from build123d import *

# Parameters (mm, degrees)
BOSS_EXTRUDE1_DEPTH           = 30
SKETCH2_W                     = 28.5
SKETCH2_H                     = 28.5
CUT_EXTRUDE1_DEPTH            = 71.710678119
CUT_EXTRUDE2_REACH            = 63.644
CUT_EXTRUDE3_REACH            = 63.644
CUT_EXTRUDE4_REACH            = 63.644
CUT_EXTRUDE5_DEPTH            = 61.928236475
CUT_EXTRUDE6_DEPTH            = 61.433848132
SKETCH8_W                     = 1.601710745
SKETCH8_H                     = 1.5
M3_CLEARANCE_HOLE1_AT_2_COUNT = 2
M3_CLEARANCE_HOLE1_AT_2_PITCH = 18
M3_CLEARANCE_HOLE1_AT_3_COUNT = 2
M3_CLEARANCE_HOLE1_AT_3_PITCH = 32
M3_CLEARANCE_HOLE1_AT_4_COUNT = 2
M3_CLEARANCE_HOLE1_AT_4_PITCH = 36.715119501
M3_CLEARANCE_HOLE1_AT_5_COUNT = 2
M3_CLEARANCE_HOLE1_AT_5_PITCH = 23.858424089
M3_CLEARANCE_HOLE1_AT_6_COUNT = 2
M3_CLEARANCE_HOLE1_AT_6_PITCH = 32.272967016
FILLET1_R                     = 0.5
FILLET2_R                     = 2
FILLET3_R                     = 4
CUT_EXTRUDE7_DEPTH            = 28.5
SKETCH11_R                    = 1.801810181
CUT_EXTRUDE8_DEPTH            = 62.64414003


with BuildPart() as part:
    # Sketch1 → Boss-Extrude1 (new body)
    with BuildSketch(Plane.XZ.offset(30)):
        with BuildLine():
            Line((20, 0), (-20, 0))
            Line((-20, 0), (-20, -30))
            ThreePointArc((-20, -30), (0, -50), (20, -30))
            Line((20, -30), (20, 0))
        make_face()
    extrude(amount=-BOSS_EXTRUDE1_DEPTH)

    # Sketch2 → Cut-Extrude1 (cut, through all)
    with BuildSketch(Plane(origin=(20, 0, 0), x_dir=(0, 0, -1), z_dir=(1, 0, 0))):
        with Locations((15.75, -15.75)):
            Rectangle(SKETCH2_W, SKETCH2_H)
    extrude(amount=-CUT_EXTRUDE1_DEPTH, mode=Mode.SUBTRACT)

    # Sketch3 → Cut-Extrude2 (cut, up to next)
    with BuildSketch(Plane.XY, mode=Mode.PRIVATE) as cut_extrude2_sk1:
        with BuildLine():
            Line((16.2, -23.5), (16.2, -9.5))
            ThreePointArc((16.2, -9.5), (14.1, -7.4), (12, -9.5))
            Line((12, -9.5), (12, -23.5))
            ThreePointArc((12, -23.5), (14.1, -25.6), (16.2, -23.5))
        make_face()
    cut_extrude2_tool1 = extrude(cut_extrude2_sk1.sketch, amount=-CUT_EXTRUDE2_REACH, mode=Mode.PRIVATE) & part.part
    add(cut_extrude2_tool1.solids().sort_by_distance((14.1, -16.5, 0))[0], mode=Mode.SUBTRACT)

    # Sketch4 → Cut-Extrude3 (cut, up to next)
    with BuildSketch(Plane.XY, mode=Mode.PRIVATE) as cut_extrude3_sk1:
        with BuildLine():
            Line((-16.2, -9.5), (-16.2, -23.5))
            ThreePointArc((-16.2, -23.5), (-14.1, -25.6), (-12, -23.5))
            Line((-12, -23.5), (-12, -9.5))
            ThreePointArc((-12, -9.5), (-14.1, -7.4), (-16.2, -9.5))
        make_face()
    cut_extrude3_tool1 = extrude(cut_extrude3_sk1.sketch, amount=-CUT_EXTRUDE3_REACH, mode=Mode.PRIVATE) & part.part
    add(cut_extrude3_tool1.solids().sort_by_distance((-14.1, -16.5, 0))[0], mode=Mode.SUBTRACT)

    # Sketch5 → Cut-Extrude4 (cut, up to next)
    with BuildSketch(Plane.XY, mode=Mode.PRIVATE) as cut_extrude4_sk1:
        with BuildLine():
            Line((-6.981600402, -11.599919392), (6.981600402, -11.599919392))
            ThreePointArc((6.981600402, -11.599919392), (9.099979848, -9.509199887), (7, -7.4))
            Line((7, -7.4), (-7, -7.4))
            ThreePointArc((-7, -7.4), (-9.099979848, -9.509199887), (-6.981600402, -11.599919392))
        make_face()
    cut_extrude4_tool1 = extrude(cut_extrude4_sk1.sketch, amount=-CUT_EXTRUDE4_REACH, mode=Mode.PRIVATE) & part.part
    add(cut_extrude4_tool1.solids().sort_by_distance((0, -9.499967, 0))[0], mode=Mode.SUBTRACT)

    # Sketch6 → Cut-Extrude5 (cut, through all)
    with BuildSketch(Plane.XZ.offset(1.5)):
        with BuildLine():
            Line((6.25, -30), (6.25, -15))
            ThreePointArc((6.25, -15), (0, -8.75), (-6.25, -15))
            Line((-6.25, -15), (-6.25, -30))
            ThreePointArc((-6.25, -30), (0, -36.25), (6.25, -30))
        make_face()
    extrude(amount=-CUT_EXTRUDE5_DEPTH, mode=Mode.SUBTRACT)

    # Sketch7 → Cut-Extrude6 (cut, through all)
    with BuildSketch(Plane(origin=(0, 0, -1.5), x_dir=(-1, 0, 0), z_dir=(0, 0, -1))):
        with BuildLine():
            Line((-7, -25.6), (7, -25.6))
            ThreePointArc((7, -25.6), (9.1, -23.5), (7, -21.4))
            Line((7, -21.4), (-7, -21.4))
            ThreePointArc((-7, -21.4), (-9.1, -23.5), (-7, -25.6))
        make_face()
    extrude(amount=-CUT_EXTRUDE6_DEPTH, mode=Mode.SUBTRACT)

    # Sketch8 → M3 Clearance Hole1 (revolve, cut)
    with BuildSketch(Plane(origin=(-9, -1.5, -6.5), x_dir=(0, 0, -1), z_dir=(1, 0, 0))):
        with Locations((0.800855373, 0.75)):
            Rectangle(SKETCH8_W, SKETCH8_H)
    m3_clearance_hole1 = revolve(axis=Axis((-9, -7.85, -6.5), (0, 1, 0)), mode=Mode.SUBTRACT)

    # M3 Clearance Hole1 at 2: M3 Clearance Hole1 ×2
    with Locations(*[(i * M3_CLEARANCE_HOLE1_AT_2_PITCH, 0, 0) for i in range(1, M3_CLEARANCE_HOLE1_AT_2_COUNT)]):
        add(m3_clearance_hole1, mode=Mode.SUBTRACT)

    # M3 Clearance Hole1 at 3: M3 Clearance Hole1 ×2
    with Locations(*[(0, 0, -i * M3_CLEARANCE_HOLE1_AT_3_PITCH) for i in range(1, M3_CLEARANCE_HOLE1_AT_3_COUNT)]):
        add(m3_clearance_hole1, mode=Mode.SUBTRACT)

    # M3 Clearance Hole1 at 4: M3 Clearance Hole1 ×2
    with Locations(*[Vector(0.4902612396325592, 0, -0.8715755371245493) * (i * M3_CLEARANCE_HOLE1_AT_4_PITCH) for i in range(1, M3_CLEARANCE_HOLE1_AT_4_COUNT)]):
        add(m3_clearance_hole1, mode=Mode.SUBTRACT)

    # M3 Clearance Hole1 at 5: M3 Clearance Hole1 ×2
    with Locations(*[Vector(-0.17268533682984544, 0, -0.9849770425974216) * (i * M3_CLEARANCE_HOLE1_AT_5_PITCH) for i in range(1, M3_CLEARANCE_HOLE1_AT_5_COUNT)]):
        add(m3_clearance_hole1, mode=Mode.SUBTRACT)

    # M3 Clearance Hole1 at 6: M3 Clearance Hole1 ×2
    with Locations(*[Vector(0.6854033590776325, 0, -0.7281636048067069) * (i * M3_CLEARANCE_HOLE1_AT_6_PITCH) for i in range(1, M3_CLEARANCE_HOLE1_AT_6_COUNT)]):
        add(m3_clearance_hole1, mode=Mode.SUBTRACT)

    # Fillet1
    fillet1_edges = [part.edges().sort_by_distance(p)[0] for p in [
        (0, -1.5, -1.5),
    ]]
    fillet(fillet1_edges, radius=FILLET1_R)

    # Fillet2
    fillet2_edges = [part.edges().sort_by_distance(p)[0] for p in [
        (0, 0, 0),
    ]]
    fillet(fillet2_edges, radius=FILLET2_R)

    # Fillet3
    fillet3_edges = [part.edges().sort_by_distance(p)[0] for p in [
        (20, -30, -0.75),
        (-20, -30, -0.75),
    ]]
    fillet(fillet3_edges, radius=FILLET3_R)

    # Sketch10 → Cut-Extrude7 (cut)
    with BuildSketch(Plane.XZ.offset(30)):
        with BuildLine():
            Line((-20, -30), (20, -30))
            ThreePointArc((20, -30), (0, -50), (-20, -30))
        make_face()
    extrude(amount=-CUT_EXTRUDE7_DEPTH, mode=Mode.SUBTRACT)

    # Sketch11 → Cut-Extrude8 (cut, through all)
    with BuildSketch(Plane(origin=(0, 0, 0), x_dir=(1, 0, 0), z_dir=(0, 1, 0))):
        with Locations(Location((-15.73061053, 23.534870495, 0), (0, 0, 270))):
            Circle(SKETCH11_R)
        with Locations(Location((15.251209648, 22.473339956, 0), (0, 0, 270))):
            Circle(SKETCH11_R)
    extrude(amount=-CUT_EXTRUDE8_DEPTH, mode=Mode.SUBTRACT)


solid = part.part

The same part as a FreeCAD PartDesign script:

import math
import FreeCAD as App
import Part
import Sketcher


def edges_at(feature, points):
    """Names of the edges that pass closest to the given points."""
    edges = feature.Shape.Edges
    near = lambda p: min(range(len(edges)), key=lambda i: edges[i].distToShape(Part.Vertex(*p))[0])
    return sorted({f"Edge{near(p) + 1}" for p in points})


def add_polygon(sketch, points):
    """Adds a closed chain of lines whose ends are joined by coincident constraints."""
    first, n = sketch.GeometryCount, len(points)
    for a, b in zip(points, points[1:] + points[:1]):
        sketch.addGeometry(Part.LineSegment(App.Vector(*a, 0), App.Vector(*b, 0)), False)
    for i in range(n):
        sketch.addConstraint(Sketcher.Constraint("Coincident", first + i, 2, first + (i + 1) % n, 1))

doc = App.newDocument("Part")
params = doc.addObject("Spreadsheet::Sheet", "Params")
for row, (alias, value) in enumerate([
    ("sketch1_radius", "20 mm"),
    ("sketch1_height", "30 mm"),
    ("pad1_length", "30 mm"),
    ("sketch2_width", "28.5 mm"),
    ("sketch3_radius", "2.1 mm"),
    ("sketch3_height", "14 mm"),
    ("sketch4_radius", "2.1 mm"),
    ("sketch4_height", "14 mm"),
    ("sketch5_radius", "2.1 mm"),
    ("sketch5_width", "14 mm"),
    ("sketch6_height", "15 mm"),
    ("sketch6_radius", "6.25 mm"),
    ("sketch7_radius", "2.1 mm"),
    ("sketch7_width", "14 mm"),
    ("sketch8_width", "1.5 mm"),
    ("groove_angle", "360 deg"),
    ("linearpattern_pitch", "18 mm"),
    ("linearpattern2_pitch", "32 mm"),
    ("linearpattern3_pitch", "36.71512 mm"),
    ("linearpattern4_pitch", "23.858424 mm"),
    ("linearpattern5_pitch", "32.272967 mm"),
    ("fillet_radius", "0.5 mm"),
    ("fillet2_radius", "2 mm"),
    ("fillet3_radius", "4 mm"),
    ("sketch9_radius", "20 mm"),
    ("pocket7_length", "28.5 mm"),
], start=1):
    params.set(f"A{row}", alias)
    params.set(f"B{row}", "=" + value)
    params.setAlias(f"B{row}", alias)

body = doc.addObject("PartDesign::Body", "Body")

# Sketch on XZ plane
sketch1 = doc.addObject("Sketcher::SketchObject", "Sketch")
body.addObject(sketch1)
sketch1.AttachmentSupport = (doc.XZ_Plane, [""])
sketch1.MapMode = "FlatFace"
sketch1.AttachmentOffset = App.Placement(App.Vector(0, 0, 30), App.Rotation())
sketch1.addGeometry([
    Part.LineSegment(App.Vector(20, 0, 0), App.Vector(-20, 0, 0)),
    Part.LineSegment(App.Vector(-20, 0, 0), App.Vector(-20, -30, 0)),
    Part.ArcOfCircle(Part.Circle(App.Vector(0, -30, 0), App.Vector(0, 0, 1), 20), math.radians(180), math.radians(360)),
    Part.LineSegment(App.Vector(20, -30, 0), App.Vector(20, 0, 0)),
], False)
sketch1.addConstraint([
    Sketcher.Constraint("Coincident", 0, 2, 1, 1),
    Sketcher.Constraint("Tangent", 1, 2, 2, 1),
    Sketcher.Constraint("Tangent", 2, 2, 3, 1),
    Sketcher.Constraint("Coincident", 3, 2, 0, 1),
    Sketcher.Constraint("Horizontal", 0),
    Sketcher.Constraint("Vertical", 1),
    Sketcher.Constraint("Vertical", 3),
    Sketcher.Constraint("Symmetric", 0, 2, 3, 2, -1, 1),
    Sketcher.Constraint("Radius", 2, 20.0),
    Sketcher.Constraint("DistanceY", 1, 2, 1, 1, 30.0),
])
sketch1.setExpression("Constraints[8]", "Params.sketch1_radius")
sketch1.setExpression("Constraints[9]", "Params.sketch1_height")
pad1 = doc.addObject("PartDesign::Pad", "Pad")
body.addObject(pad1)
pad1.Profile = sketch1
pad1.setExpression("Length", "Params.pad1_length")
pad1.Reversed = True

# Sketch on YZ plane
sketch2 = doc.addObject("Sketcher::SketchObject", "Sketch001")
body.addObject(sketch2)
sketch2.AttachmentSupport = (doc.YZ_Plane, [""])
sketch2.MapMode = "FlatFace"
sketch2.AttachmentOffset = App.Placement(App.Vector(0, 0, 20), App.Rotation())
add_polygon(sketch2, [(-1.5, -1.5), (-30, -1.5), (-30, -30), (-1.5, -30)])  # lines 0-3
sketch2.addConstraint([
    Sketcher.Constraint("Horizontal", 0),
    Sketcher.Constraint("Vertical", 1),
    Sketcher.Constraint("Horizontal", 2),
    Sketcher.Constraint("Vertical", 3),
    Sketcher.Constraint("Equal", 2, 1),
    Sketcher.Constraint("DistanceX", 0, 2, 0, 1, 28.5),
    Sketcher.Constraint("DistanceX", 0, 2, -1, 1, 30.0),
    Sketcher.Constraint("DistanceY", 1, 2, -1, 1, 30.0),
])
sketch2.setExpression("Constraints[9]", "Params.sketch2_width")
pocket1 = doc.addObject("PartDesign::Pocket", "Pocket")
body.addObject(pocket1)
pocket1.Profile = sketch2
pocket1.Type = "ThroughAll"

# Sketch on XY plane
sketch3 = doc.addObject("Sketcher::SketchObject", "Sketch002")
body.addObject(sketch3)
sketch3.AttachmentSupport = (doc.XY_Plane, [""])
sketch3.MapMode = "FlatFace"
sketch3.addGeometry([
    Part.LineSegment(App.Vector(16.2, -23.5, 0), App.Vector(16.2, -9.5, 0)),
    Part.ArcOfCircle(Part.Circle(App.Vector(14.1, -9.5, 0), App.Vector(0, 0, 1), 2.1), math.radians(0), math.radians(180)),
    Part.LineSegment(App.Vector(12, -9.5, 0), App.Vector(12, -23.5, 0)),
    Part.ArcOfCircle(Part.Circle(App.Vector(14.1, -23.5, 0), App.Vector(0, 0, 1), 2.1), math.radians(180), math.radians(360)),
], False)
sketch3.addConstraint([
    Sketcher.Constraint("Tangent", 0, 2, 1, 1),
    Sketcher.Constraint("Tangent", 1, 2, 2, 1),
    Sketcher.Constraint("Tangent", 2, 2, 3, 1),
    Sketcher.Constraint("Tangent", 3, 2, 0, 1),
    Sketcher.Constraint("Vertical", 0),
    Sketcher.Constraint("Vertical", 2),
    Sketcher.Constraint("Radius", 1, 2.1),
    Sketcher.Constraint("DistanceY", 0, 1, 0, 2, 14.0),
    Sketcher.Constraint("DistanceX", -1, 1, 1, 2, 12.0),
    Sketcher.Constraint("DistanceY", 1, 3, -1, 1, 9.5),
])
sketch3.setExpression("Constraints[6]", "Params.sketch3_radius")
sketch3.setExpression("Constraints[7]", "Params.sketch3_height")
pocket2 = doc.addObject("PartDesign::Pocket", "Pocket001")
body.addObject(pocket2)
pocket2.Profile = sketch3
pocket2.Type = "UpToFirst"

# Sketch on XY plane
sketch4 = doc.addObject("Sketcher::SketchObject", "Sketch003")
body.addObject(sketch4)
sketch4.AttachmentSupport = (doc.XY_Plane, [""])
sketch4.MapMode = "FlatFace"
sketch4.addGeometry([
    Part.LineSegment(App.Vector(-16.2, -9.5, 0), App.Vector(-16.2, -23.5, 0)),
    Part.ArcOfCircle(Part.Circle(App.Vector(-14.1, -23.5, 0), App.Vector(0, 0, 1), 2.1), math.radians(180), math.radians(360)),
    Part.LineSegment(App.Vector(-12, -23.5, 0), App.Vector(-12, -9.5, 0)),
    Part.ArcOfCircle(Part.Circle(App.Vector(-14.1, -9.5, 0), App.Vector(0, 0, 1), 2.1), math.radians(0), math.radians(180)),
], False)
sketch4.addConstraint([
    Sketcher.Constraint("Tangent", 0, 2, 1, 1),
    Sketcher.Constraint("Tangent", 1, 2, 2, 1),
    Sketcher.Constraint("Tangent", 2, 2, 3, 1),
    Sketcher.Constraint("Tangent", 3, 2, 0, 1),
    Sketcher.Constraint("Vertical", 0),
    Sketcher.Constraint("Vertical", 2),
    Sketcher.Constraint("Radius", 1, 2.1),
    Sketcher.Constraint("DistanceY", 0, 2, 0, 1, 14.0),
    Sketcher.Constraint("DistanceX", 1, 2, -1, 1, 12.0),
    Sketcher.Constraint("DistanceY", 1, 3, -1, 1, 23.5),
])
sketch4.setExpression("Constraints[6]", "Params.sketch4_radius")
sketch4.setExpression("Constraints[7]", "Params.sketch4_height")
pocket3 = doc.addObject("PartDesign::Pocket", "Pocket002")
body.addObject(pocket3)
pocket3.Profile = sketch4
pocket3.Type = "UpToFirst"

# Sketch on XY plane
sketch5 = doc.addObject("Sketcher::SketchObject", "Sketch004")
body.addObject(sketch5)
sketch5.AttachmentSupport = (doc.XY_Plane, [""])
sketch5.MapMode = "FlatFace"
sketch5.addGeometry([
    Part.LineSegment(App.Vector(-6.9816, -11.599919, 0), App.Vector(6.9816, -11.599919, 0)),
    Part.ArcOfCircle(Part.Circle(App.Vector(7, -9.5, 0), App.Vector(0, 0, 1), 2.1), math.radians(-90.502016), math.radians(90)),
    Part.LineSegment(App.Vector(7, -7.4, 0), App.Vector(-7, -7.4, 0)),
    Part.ArcOfCircle(Part.Circle(App.Vector(-7, -9.5, 0), App.Vector(0, 0, 1), 2.1), math.radians(90), math.radians(270.502016)),
], False)
sketch5.addConstraint([
    Sketcher.Constraint("Coincident", 0, 2, 1, 1),
    Sketcher.Constraint("Tangent", 1, 2, 2, 1),
    Sketcher.Constraint("Tangent", 2, 2, 3, 1),
    Sketcher.Constraint("Coincident", 3, 2, 0, 1),
    Sketcher.Constraint("Horizontal", 0),
    Sketcher.Constraint("Horizontal", 2),
    Sketcher.Constraint("Equal", 1, 3),
    Sketcher.Constraint("Radius", 1, 2.1),
    Sketcher.Constraint("DistanceX", 2, 2, 2, 1, 14.0),
    Sketcher.Constraint("DistanceX", -1, 1, 1, 3, 7.0),
    Sketcher.Constraint("DistanceY", 1, 3, -1, 1, 9.5),
    Sketcher.Constraint("DistanceX", 0, 1, 0, 2, 13.963201),
])
sketch5.setExpression("Constraints[7]", "Params.sketch5_radius")
sketch5.setExpression("Constraints[8]", "Params.sketch5_width")
pocket4 = doc.addObject("PartDesign::Pocket", "Pocket003")
body.addObject(pocket4)
pocket4.Profile = sketch5
pocket4.Type = "UpToFirst"

# Sketch on XZ plane
sketch6 = doc.addObject("Sketcher::SketchObject", "Sketch005")
body.addObject(sketch6)
sketch6.AttachmentSupport = (doc.XZ_Plane, [""])
sketch6.MapMode = "FlatFace"
sketch6.AttachmentOffset = App.Placement(App.Vector(0, 0, 1.5), App.Rotation())
sketch6.addGeometry([
    Part.LineSegment(App.Vector(6.25, -30, 0), App.Vector(6.25, -15, 0)),
    Part.ArcOfCircle(Part.Circle(App.Vector(0, -15, 0), App.Vector(0, 0, 1), 6.25), math.radians(0), math.radians(180)),
    Part.LineSegment(App.Vector(-6.25, -15, 0), App.Vector(-6.25, -30, 0)),
    Part.ArcOfCircle(Part.Circle(App.Vector(0, -30, 0), App.Vector(0, 0, 1), 6.25), math.radians(180), math.radians(360)),
], False)
sketch6.addConstraint([
    Sketcher.Constraint("Tangent", 0, 2, 1, 1),
    Sketcher.Constraint("Tangent", 1, 2, 2, 1),
    Sketcher.Constraint("Tangent", 2, 2, 3, 1),
    Sketcher.Constraint("Tangent", 3, 2, 0, 1),
    Sketcher.Constraint("Vertical", 0),
    Sketcher.Constraint("Vertical", 2),
    Sketcher.Constraint("PointOnObject", 1, 3, -2),
    Sketcher.Constraint("DistanceY", 0, 1, 0, 2, 15.0),
    Sketcher.Constraint("Radius", 1, 6.25),
    Sketcher.Constraint("DistanceY", 1, 3, -1, 1, 15.0),
])
sketch6.setExpression("Constraints[7]", "Params.sketch6_height")
sketch6.setExpression("Constraints[8]", "Params.sketch6_radius")
pocket5 = doc.addObject("PartDesign::Pocket", "Pocket004")
body.addObject(pocket5)
pocket5.Profile = sketch6
pocket5.Type = "ThroughAll"

# Sketch on XY plane
sketch7 = doc.addObject("Sketcher::SketchObject", "Sketch006")
body.addObject(sketch7)
sketch7.AttachmentSupport = (doc.XY_Plane, [""])
sketch7.MapMode = "FlatFace"
sketch7.AttachmentOffset = App.Placement(App.Vector(0, 0, -1.5), App.Rotation())
sketch7.addGeometry([
    Part.LineSegment(App.Vector(7, -25.6, 0), App.Vector(-7, -25.6, 0)),
    Part.ArcOfCircle(Part.Circle(App.Vector(-7, -23.5, 0), App.Vector(0, 0, 1), 2.1), math.radians(90), math.radians(270)),
    Part.LineSegment(App.Vector(-7, -21.4, 0), App.Vector(7, -21.4, 0)),
    Part.ArcOfCircle(Part.Circle(App.Vector(7, -23.5, 0), App.Vector(0, 0, 1), 2.1), math.radians(-90), math.radians(90)),
], False)
sketch7.addConstraint([
    Sketcher.Constraint("Tangent", 0, 2, 1, 2),
    Sketcher.Constraint("Tangent", 1, 1, 2, 1),
    Sketcher.Constraint("Tangent", 2, 2, 3, 2),
    Sketcher.Constraint("Tangent", 3, 1, 0, 1),
    Sketcher.Constraint("Horizontal", 0),
    Sketcher.Constraint("Horizontal", 2),
    Sketcher.Constraint("Radius", 1, 2.1),
    Sketcher.Constraint("DistanceX", 0, 2, 0, 1, 14.0),
    Sketcher.Constraint("DistanceX", 1, 3, -1, 1, 7.0),
    Sketcher.Constraint("DistanceY", 1, 3, -1, 1, 23.5),
])
sketch7.setExpression("Constraints[6]", "Params.sketch7_radius")
sketch7.setExpression("Constraints[7]", "Params.sketch7_width")
pocket6 = doc.addObject("PartDesign::Pocket", "Pocket005")
body.addObject(pocket6)
pocket6.Profile = sketch7
pocket6.Type = "ThroughAll"
pocket6.Reversed = True

# Sketch on YZ plane
sketch8 = doc.addObject("Sketcher::SketchObject", "Sketch007")
body.addObject(sketch8)
sketch8.AttachmentSupport = (doc.YZ_Plane, [""])
sketch8.MapMode = "FlatFace"
sketch8.AttachmentOffset = App.Placement(App.Vector(0, 0, -9), App.Rotation())
add_polygon(sketch8, [(0, -6.5), (-1.5, -6.5), (-1.5, -8.101711), (0, -8.101711)])  # lines 0-3
sketch8.addGeometry(Part.LineSegment(App.Vector(-1.5, -6.5, 0), App.Vector(0, -6.5, 0)), True)  # axis
sketch8.addConstraint([
    Sketcher.Constraint("Horizontal", 0),
    Sketcher.Constraint("Vertical", 1),
    Sketcher.Constraint("Horizontal", 2),
    Sketcher.Constraint("Vertical", 3),
    Sketcher.Constraint("Horizontal", 4),
    Sketcher.Constraint("Coincident", 4, 1, 0, 2),
    Sketcher.Constraint("PointOnObject", 2, 2, -2),
    Sketcher.Constraint("PointOnObject", 4, 2, -2),
    Sketcher.Constraint("DistanceX", 0, 2, 0, 1, 1.5),
    Sketcher.Constraint("DistanceY", 0, 2, -1, 1, 6.5),
    Sketcher.Constraint("DistanceY", 1, 2, 1, 1, 1.601711),
])
sketch8.setExpression("Constraints[12]", "Params.sketch8_width")
groove = doc.addObject("PartDesign::Groove", "Groove")
body.addObject(groove)
groove.Profile = sketch8
groove.ReferenceAxis = (sketch8, ["Axis0"])
groove.setExpression("Angle", "Params.groove_angle")
doc.recompute()

linearpattern = doc.addObject("PartDesign::LinearPattern", "LinearPattern")
body.addObject(linearpattern)
linearpattern.Originals = [groove]
linearpattern.Direction = (doc.X_Axis, [""])
linearpattern.Mode = "offset"
linearpattern.setExpression("Offset", "Params.linearpattern_pitch")
linearpattern.Occurrences = 2
body.Tip = linearpattern
doc.recompute()

linearpattern2 = doc.addObject("PartDesign::LinearPattern", "LinearPattern001")
body.addObject(linearpattern2)
linearpattern2.Originals = [groove]
linearpattern2.Direction = (doc.Z_Axis, [""])
linearpattern2.Mode = "offset"
linearpattern2.setExpression("Offset", "Params.linearpattern2_pitch")
linearpattern2.Occurrences = 2
linearpattern2.Reversed = True
body.Tip = linearpattern2
doc.recompute()

datumline = doc.addObject("PartDesign::Line", "DatumLine")
body.addObject(datumline)
datumline.Placement = App.Placement(App.Vector(0, 0, 0), App.Rotation(App.Vector(0, 0, 1), App.Vector(0.49026124, 0, -0.871575537)))
linearpattern3 = doc.addObject("PartDesign::LinearPattern", "LinearPattern002")
body.addObject(linearpattern3)
linearpattern3.Originals = [groove]
linearpattern3.Direction = (datumline, [""])
linearpattern3.Mode = "offset"
linearpattern3.setExpression("Offset", "Params.linearpattern3_pitch")
linearpattern3.Occurrences = 2
body.Tip = linearpattern3
doc.recompute()

datumline2 = doc.addObject("PartDesign::Line", "DatumLine001")
body.addObject(datumline2)
datumline2.Placement = App.Placement(App.Vector(0, 0, 0), App.Rotation(App.Vector(0, 0, 1), App.Vector(-0.172685337, 0, -0.984977043)))
linearpattern4 = doc.addObject("PartDesign::LinearPattern", "LinearPattern003")
body.addObject(linearpattern4)
linearpattern4.Originals = [groove]
linearpattern4.Direction = (datumline2, [""])
linearpattern4.Mode = "offset"
linearpattern4.setExpression("Offset", "Params.linearpattern4_pitch")
linearpattern4.Occurrences = 2
body.Tip = linearpattern4
doc.recompute()

datumline3 = doc.addObject("PartDesign::Line", "DatumLine002")
body.addObject(datumline3)
datumline3.Placement = App.Placement(App.Vector(0, 0, 0), App.Rotation(App.Vector(0, 0, 1), App.Vector(0.685403359, 0, -0.728163605)))
linearpattern5 = doc.addObject("PartDesign::LinearPattern", "LinearPattern004")
body.addObject(linearpattern5)
linearpattern5.Originals = [groove]
linearpattern5.Direction = (datumline3, [""])
linearpattern5.Mode = "offset"
linearpattern5.setExpression("Offset", "Params.linearpattern5_pitch")
linearpattern5.Occurrences = 2
body.Tip = linearpattern5
doc.recompute()

fillet = doc.addObject("PartDesign::Fillet", "Fillet")
body.addObject(fillet)
fillet.Base = (linearpattern5, edges_at(linearpattern5, [(0, -1.5, -1.5)]))
fillet.setExpression("Radius", "Params.fillet_radius")
doc.recompute()

fillet2 = doc.addObject("PartDesign::Fillet", "Fillet001")
body.addObject(fillet2)
fillet2.Base = (fillet, edges_at(fillet, [(0, 0, 0)]))
fillet2.setExpression("Radius", "Params.fillet2_radius")
doc.recompute()

fillet3 = doc.addObject("PartDesign::Fillet", "Fillet002")
body.addObject(fillet3)
fillet3.Base = (fillet2, edges_at(fillet2, [(20, -30, -0.75), (-20, -30, -0.75)]))
fillet3.setExpression("Radius", "Params.fillet3_radius")

# Sketch on XZ plane
sketch9 = doc.addObject("Sketcher::SketchObject", "Sketch008")
body.addObject(sketch9)
sketch9.AttachmentSupport = (doc.XZ_Plane, [""])
sketch9.MapMode = "FlatFace"
sketch9.AttachmentOffset = App.Placement(App.Vector(0, 0, 30), App.Rotation())
sketch9.addGeometry([
    Part.LineSegment(App.Vector(20, -30, 0), App.Vector(-20, -30, 0)),
    Part.ArcOfCircle(Part.Circle(App.Vector(0, -30, 0), App.Vector(0, 0, 1), 20), math.radians(180), math.radians(360)),
], False)
sketch9.addConstraint([
    Sketcher.Constraint("Coincident", 0, 1, 1, 2),
    Sketcher.Constraint("Coincident", 1, 1, 0, 2),
    Sketcher.Constraint("Horizontal", 0),
    Sketcher.Constraint("PointOnObject", 1, 3, -2),
    Sketcher.Constraint("Horizontal", 1, 3, 0, 1),
    Sketcher.Constraint("Radius", 1, 20.0),
    Sketcher.Constraint("DistanceY", 1, 3, -1, 1, 30.0),
])
sketch9.setExpression("Constraints[5]", "Params.sketch9_radius")
pocket7 = doc.addObject("PartDesign::Pocket", "Pocket006")
body.addObject(pocket7)
pocket7.Profile = sketch9
pocket7.setExpression("Length", "Params.pocket7_length")

# Sketch on XZ plane
sketch10 = doc.addObject("Sketcher::SketchObject", "Sketch009")
body.addObject(sketch10)
sketch10.AttachmentSupport = (doc.XZ_Plane, [""])
sketch10.MapMode = "FlatFace"
sketch10.addGeometry([
    Part.Circle(App.Vector(-15.730611, -23.53487, 0), App.Vector(0, 0, 1), 1.80181),
    Part.Circle(App.Vector(15.25121, -22.47334, 0), App.Vector(0, 0, 1), 1.80181),
], False)
sketch10.addConstraint([
    Sketcher.Constraint("Equal", 0, 1),
    Sketcher.Constraint("Diameter", 0, 3.60362),
    Sketcher.Constraint("DistanceX", 0, 3, -1, 1, 15.730611),
    Sketcher.Constraint("DistanceY", 0, 3, -1, 1, 23.53487),
    Sketcher.Constraint("DistanceX", -1, 1, 1, 3, 15.25121),
    Sketcher.Constraint("DistanceY", 1, 3, -1, 1, 22.47334),
])
pocket8 = doc.addObject("PartDesign::Pocket", "Pocket007")
body.addObject(pocket8)
pocket8.Profile = sketch10
pocket8.Type = "ThroughAll"
pocket8.Reversed = True

doc.recompute()
